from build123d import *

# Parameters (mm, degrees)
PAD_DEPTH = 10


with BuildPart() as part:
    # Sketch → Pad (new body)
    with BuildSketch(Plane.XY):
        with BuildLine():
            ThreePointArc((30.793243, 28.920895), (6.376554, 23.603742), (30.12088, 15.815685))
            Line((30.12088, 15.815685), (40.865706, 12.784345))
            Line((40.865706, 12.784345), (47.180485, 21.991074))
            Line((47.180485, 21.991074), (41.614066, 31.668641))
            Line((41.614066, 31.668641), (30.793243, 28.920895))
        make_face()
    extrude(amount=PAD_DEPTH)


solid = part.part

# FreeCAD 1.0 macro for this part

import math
import FreeCAD as App
import Part
import Sketcher

V = App.Vector
Q = App.Units.Quantity

doc = App.newDocument("Part")
body = doc.addObject("PartDesign::Body", "Body")

# Sketch on XY plane
sketch1 = body.newObject("Sketcher::SketchObject", "Sketch")
sketch1.AttachmentSupport = (doc.getObject("XY_Plane"), [""])
sketch1.MapMode = "FlatFace"
sketch1.addGeometry([
    Part.ArcOfCircle(Part.Circle(V(19, 23, 0), V(0, 0, 1), 13), math.radians(28), math.radians(327)),  # 0
    Part.LineSegment(V(30, 16, 0), V(41, 13, 0)),  # 1
    Part.LineSegment(V(41, 13, 0), V(47, 22, 0)),  # 2
    Part.LineSegment(V(47, 22, 0), V(42, 32, 0)),  # 3
    Part.LineSegment(V(42, 32, 0), V(31, 29, 0)),  # 4
], False)
sketch1.addConstraint([
    Sketcher.Constraint("Coincident", 0, 2, 1, 1),
    Sketcher.Constraint("Coincident", 1, 2, 2, 1),
    Sketcher.Constraint("Coincident", 2, 2, 3, 1),
    Sketcher.Constraint("Coincident", 3, 2, 4, 1),
    Sketcher.Constraint("Coincident", 4, 2, 0, 1),
    Sketcher.Constraint("Equal", 1, 2),
    Sketcher.Constraint("Equal", 2, 3),
    Sketcher.Constraint("Equal", 3, 4),
    Sketcher.Constraint("Radius", 0, Q("12.948785 mm")),
    Sketcher.Constraint("DistanceY", 2, 2, 0, 3, Q("0.949202 mm")),
    Sketcher.Constraint("Distance", 2, Q("11.164242 mm")),
    Sketcher.Constraint("DistanceX", -1, 1, 0, 3, Q("19.30833 mm")),
    Sketcher.Constraint("DistanceX", -1, 1, 0, 2, Q("30.12088 mm")),
    Sketcher.Constraint("DistanceY", -1, 1, 3, 2, Q("31.668641 mm")),
    Sketcher.Constraint("DistanceY", 1, 2, 0, 2, Q("3.03134 mm")),
    Sketcher.Constraint("DistanceX", 3, 2, 2, 2, Q("5.566419 mm")),
])
pad1 = body.newObject("PartDesign::Pad", "Pad")
pad1.Profile = sketch1
pad1.Length = 10

doc.recompute()
